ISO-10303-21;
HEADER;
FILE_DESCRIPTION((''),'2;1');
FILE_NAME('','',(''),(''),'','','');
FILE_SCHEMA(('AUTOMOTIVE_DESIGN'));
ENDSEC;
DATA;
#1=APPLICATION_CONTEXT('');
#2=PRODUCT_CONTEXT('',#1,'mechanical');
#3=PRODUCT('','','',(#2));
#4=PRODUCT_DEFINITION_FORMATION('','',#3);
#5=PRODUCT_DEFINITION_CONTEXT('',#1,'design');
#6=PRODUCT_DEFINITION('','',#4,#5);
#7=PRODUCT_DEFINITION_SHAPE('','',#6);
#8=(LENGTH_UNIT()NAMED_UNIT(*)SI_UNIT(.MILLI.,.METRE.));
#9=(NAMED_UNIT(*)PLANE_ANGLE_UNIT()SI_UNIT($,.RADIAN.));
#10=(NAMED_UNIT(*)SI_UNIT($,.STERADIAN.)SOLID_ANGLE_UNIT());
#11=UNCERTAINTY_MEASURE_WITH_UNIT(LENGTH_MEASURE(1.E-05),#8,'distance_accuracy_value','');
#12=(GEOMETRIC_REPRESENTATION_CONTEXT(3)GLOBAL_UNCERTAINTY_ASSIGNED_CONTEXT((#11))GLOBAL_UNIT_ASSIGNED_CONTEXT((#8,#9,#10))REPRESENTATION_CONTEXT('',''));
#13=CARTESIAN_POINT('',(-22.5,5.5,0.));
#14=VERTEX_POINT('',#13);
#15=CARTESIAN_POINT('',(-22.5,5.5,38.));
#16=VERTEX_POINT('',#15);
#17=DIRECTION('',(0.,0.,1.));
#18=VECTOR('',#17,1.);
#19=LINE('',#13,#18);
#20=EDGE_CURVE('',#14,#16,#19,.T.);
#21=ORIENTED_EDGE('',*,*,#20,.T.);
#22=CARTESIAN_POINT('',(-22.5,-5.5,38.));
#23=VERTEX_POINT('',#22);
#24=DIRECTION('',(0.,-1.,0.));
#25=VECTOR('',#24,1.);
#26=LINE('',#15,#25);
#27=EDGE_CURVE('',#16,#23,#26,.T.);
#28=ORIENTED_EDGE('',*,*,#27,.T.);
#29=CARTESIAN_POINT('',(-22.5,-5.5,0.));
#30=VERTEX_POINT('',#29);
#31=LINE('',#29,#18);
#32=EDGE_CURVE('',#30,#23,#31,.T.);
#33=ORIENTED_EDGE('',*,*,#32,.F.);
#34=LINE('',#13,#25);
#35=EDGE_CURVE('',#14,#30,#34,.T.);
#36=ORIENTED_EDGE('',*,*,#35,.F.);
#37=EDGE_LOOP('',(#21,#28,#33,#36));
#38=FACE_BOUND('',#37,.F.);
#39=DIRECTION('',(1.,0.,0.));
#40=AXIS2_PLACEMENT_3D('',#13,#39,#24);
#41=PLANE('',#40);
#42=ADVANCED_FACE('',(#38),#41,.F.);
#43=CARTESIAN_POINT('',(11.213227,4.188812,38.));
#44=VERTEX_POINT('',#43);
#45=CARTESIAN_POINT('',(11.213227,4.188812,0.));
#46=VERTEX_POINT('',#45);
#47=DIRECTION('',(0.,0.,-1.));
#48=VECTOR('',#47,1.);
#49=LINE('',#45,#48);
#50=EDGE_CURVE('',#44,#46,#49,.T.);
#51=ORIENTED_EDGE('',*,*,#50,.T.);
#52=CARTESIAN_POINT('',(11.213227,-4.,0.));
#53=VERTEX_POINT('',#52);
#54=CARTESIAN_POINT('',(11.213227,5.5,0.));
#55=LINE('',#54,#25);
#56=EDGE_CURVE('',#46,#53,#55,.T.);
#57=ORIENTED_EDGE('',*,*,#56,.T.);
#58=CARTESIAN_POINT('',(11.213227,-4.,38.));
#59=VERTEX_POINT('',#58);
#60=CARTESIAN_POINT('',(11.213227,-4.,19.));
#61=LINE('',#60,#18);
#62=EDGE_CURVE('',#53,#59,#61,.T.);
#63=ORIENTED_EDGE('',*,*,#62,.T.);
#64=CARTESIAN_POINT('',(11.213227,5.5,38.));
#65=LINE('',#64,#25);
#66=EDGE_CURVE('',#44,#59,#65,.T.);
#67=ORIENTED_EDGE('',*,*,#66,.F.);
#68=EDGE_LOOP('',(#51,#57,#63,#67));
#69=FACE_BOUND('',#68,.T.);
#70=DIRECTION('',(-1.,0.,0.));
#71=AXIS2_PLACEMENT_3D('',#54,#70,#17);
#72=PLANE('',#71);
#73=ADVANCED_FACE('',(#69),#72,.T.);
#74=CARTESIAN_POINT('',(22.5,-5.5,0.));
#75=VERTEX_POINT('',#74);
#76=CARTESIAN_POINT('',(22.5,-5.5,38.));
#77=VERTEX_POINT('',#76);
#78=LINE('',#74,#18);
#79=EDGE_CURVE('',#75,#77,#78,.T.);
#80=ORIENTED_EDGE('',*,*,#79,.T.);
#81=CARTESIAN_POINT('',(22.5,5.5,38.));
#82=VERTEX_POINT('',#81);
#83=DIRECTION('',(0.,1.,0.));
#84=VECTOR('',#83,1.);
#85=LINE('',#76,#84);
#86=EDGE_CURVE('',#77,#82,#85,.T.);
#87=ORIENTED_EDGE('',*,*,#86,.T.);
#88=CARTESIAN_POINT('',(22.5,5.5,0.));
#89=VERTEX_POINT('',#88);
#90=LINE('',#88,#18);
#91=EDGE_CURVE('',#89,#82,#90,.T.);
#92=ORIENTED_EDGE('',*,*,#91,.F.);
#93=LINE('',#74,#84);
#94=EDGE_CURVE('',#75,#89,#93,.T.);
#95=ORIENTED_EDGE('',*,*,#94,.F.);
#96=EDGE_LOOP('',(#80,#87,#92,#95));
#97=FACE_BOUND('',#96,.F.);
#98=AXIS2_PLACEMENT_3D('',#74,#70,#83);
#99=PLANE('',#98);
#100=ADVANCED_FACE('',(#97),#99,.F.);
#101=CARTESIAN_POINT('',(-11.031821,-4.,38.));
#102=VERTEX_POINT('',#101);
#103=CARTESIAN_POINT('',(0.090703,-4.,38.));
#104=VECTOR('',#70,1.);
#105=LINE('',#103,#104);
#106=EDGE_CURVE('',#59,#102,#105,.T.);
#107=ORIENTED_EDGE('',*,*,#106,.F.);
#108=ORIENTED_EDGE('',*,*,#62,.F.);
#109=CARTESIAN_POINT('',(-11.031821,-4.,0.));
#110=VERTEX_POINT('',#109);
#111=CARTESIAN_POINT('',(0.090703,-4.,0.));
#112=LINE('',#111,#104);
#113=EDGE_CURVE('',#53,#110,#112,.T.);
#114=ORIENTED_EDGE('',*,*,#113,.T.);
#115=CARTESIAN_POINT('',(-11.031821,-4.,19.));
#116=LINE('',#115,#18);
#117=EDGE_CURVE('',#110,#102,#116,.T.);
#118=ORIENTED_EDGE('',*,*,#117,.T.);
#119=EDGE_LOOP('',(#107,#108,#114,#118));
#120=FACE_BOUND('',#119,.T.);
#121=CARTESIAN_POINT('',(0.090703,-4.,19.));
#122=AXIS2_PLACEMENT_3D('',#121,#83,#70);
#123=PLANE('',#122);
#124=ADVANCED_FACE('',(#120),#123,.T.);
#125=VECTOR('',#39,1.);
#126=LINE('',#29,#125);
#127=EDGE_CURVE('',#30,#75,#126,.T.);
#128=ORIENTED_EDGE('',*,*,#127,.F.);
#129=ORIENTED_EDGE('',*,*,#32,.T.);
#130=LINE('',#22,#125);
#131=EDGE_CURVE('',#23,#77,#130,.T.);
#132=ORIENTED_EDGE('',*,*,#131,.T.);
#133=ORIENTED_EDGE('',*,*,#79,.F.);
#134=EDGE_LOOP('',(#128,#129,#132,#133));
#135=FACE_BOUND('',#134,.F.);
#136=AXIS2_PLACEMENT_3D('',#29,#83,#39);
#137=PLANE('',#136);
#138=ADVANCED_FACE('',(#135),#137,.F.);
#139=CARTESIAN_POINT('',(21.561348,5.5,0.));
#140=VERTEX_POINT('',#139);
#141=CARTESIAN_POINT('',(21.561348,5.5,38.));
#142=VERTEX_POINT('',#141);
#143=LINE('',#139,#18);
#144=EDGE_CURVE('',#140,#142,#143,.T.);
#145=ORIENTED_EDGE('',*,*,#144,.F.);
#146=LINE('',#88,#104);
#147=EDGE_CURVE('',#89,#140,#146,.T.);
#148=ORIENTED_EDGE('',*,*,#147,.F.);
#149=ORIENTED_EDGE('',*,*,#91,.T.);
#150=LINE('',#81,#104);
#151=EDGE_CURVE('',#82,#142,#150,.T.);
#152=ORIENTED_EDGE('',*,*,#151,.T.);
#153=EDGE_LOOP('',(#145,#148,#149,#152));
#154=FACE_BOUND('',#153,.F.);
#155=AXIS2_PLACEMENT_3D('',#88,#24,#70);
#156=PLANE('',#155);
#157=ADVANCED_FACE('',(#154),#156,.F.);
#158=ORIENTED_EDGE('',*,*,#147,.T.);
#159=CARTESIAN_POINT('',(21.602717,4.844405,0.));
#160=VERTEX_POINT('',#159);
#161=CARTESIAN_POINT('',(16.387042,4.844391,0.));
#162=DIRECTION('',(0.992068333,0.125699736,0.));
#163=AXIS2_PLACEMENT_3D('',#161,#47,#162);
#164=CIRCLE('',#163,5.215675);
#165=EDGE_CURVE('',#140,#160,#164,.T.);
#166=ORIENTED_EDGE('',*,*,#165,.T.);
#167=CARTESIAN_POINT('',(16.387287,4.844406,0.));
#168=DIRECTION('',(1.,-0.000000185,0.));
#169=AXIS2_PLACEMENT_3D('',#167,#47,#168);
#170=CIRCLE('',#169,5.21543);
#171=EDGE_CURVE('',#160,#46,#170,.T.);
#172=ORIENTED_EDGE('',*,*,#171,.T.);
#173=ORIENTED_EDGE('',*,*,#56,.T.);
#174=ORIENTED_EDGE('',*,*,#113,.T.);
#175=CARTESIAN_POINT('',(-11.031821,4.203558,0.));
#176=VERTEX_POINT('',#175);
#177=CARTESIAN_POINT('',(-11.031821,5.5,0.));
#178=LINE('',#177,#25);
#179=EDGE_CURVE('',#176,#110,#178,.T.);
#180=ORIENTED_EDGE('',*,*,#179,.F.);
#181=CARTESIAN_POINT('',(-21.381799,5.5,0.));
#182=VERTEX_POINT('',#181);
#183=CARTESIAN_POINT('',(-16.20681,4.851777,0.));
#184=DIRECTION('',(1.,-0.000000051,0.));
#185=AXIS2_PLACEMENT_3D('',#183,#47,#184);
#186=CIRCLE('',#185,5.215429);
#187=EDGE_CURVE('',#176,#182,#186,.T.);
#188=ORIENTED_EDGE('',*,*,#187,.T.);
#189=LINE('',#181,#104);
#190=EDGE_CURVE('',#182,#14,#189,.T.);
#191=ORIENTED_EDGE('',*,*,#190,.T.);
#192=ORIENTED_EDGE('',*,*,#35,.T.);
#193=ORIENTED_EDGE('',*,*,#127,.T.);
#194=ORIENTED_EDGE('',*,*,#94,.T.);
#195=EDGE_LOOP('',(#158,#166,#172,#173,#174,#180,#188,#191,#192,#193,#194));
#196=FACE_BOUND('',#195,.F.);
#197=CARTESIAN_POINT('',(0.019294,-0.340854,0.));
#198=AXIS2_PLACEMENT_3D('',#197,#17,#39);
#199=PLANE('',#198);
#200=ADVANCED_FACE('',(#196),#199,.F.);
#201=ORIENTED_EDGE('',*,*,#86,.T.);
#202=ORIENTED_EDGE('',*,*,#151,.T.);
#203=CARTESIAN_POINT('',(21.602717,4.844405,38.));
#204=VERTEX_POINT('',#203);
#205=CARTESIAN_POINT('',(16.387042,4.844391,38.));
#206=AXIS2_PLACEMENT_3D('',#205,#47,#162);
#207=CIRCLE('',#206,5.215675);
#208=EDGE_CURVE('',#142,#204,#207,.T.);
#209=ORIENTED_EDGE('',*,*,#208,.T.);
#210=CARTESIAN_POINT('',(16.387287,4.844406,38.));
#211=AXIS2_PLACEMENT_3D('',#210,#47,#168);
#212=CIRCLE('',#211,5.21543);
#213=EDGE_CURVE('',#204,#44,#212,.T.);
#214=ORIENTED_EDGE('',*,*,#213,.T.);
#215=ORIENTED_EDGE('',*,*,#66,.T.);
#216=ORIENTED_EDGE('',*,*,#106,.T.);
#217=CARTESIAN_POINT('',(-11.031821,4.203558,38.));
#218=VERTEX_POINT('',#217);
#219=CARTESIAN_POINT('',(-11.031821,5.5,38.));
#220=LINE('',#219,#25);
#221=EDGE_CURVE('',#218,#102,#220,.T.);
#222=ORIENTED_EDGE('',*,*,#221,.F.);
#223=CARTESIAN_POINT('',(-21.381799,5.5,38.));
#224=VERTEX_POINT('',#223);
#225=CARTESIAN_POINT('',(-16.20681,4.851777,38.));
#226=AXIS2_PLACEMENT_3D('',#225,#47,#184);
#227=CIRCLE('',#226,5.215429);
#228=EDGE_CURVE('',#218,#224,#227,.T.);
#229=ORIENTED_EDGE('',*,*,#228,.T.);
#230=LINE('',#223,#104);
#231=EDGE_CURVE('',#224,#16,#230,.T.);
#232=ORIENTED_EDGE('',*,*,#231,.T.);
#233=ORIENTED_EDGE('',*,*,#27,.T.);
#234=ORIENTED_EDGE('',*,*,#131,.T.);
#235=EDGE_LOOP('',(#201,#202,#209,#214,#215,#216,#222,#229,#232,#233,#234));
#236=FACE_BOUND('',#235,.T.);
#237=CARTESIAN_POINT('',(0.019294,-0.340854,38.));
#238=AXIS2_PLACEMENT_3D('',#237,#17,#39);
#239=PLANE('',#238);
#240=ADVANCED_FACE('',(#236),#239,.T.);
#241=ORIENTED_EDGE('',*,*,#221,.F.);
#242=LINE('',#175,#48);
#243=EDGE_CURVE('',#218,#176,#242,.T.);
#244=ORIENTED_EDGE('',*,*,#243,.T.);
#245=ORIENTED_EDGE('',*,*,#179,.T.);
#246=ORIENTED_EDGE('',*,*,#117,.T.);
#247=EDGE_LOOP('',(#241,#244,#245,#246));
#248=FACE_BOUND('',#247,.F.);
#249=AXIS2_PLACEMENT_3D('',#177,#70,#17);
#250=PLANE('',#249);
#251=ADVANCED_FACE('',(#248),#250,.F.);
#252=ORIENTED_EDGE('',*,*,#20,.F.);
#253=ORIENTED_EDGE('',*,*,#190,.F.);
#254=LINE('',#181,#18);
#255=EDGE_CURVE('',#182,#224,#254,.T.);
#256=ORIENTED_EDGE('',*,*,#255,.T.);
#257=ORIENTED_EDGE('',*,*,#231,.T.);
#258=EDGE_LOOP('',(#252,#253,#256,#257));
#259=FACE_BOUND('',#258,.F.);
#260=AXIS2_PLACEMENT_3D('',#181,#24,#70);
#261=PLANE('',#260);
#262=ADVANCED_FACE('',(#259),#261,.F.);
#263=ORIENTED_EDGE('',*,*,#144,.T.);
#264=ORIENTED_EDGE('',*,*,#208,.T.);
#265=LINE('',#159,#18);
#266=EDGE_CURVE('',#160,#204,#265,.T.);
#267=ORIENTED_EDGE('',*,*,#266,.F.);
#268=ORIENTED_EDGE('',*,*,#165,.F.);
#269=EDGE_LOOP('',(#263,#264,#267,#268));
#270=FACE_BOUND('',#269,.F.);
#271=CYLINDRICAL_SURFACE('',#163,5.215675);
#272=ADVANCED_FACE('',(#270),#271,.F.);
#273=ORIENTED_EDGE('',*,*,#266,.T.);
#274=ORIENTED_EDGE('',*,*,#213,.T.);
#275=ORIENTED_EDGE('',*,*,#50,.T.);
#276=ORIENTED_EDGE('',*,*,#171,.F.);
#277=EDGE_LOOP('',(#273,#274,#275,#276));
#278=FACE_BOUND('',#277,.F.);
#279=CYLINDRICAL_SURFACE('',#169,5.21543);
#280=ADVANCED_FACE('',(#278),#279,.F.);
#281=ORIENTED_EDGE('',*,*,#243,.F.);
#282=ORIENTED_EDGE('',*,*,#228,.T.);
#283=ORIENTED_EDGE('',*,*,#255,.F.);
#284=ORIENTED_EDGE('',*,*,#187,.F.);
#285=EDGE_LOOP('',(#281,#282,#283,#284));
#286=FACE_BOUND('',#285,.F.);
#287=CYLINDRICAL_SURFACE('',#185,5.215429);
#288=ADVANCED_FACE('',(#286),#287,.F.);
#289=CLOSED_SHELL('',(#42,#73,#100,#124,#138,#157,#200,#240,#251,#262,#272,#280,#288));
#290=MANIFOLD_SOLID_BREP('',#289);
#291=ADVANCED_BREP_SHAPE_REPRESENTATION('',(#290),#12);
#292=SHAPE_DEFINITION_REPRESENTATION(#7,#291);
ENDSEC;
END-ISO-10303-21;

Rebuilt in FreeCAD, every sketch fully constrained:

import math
import FreeCAD as App
import Part
import Sketcher

V = App.Vector

doc = App.newDocument("Part")
body = doc.addObject("PartDesign::Body", "Body")

sketch1 = body.newObject("Sketcher::SketchObject", "Sketch")
sketch1.AttachmentSupport = (doc.getObject("XY_Plane"), [""])
sketch1.MapMode = "FlatFace"
sketch1.addGeometry([
    Part.ArcOfCircle(Part.Circle(V(-16.206947, 4.851772, 0), V(0, 0, 1), 5.215566), math.radians(0.000055), math.radians(7.139594)),
    Part.ArcOfCircle(Part.Circle(V(-16.20681, 4.851777, 0), V(0, 0, 1), 5.215429), math.radians(172.860277), math.radians(359.999997)),
    Part.LineSegment(V(-21.381799, 5.5, 0), V(-22.5, 5.5, 0)),
    Part.LineSegment(V(-22.5, 5.5, 0), V(-22.5, -5.5, 0)),
    Part.LineSegment(V(-22.5, -5.5, 0), V(22.5, -5.5, 0)),
    Part.LineSegment(V(22.5, -5.5, 0), V(22.5, 5.5, 0)),
    Part.LineSegment(V(22.5, 5.5, 0), V(21.561348, 5.5, 0)),
    Part.ArcOfCircle(Part.Circle(V(16.387042, 4.844391, 0), V(0, 0, 1), 5.215675), math.radians(0.000154), math.radians(7.221166)),
    Part.ArcOfCircle(Part.Circle(V(16.387287, 4.844406, 0), V(0, 0, 1), 5.21543), math.radians(172.778657), math.radians(359.999989)),
    Part.LineSegment(V(11.213227, 5.5, 0), V(-11.031821, 5.5, 0)),
], False)
sketch1.addConstraint([
    Sketcher.Constraint("Tangent", 0, 1, 1, 2),
    Sketcher.Constraint("Coincident", 1, 1, 2, 1),
    Sketcher.Constraint("Coincident", 2, 2, 3, 1),
    Sketcher.Constraint("Coincident", 3, 2, 4, 1),
    Sketcher.Constraint("Coincident", 4, 2, 5, 1),
    Sketcher.Constraint("Coincident", 5, 2, 6, 1),
    Sketcher.Constraint("Coincident", 6, 2, 7, 2),
    Sketcher.Constraint("Coincident", 7, 1, 8, 2),
    Sketcher.Constraint("Coincident", 8, 1, 9, 1),
    Sketcher.Constraint("Coincident", 9, 2, 0, 2),
    Sketcher.Constraint("Horizontal", 2),
    Sketcher.Constraint("Vertical", 3),
    Sketcher.Constraint("Horizontal", 4),
    Sketcher.Constraint("Vertical", 5),
    Sketcher.Constraint("Horizontal", 6),
    Sketcher.Constraint("Horizontal", 9),
    Sketcher.Constraint("Equal", 1, 8),
    Sketcher.Constraint("Symmetric", 2, 2, 4, 2, -1, 1),
    Sketcher.Constraint("Horizontal", 1, 3, 0, 1),
    Sketcher.Constraint("Horizontal", 2, 2, 5, 2),
    Sketcher.Constraint("Horizontal", 8, 3, 7, 1),
    Sketcher.Constraint("Horizontal", 6, 2, 8, 1),
    Sketcher.Constraint("DistanceX", 4, 1, 4, 2, 45.0),
    Sketcher.Constraint("DistanceY", 3, 2, 3, 1, 11.0),
    Sketcher.Constraint("Radius", 1, 5.215429),
    Sketcher.Constraint("DistanceX", 2, 2, 2, 1, 1.118201),
    Sketcher.Constraint("Radius", 0, 5.215566),
    Sketcher.Constraint("Radius", 7, 5.215675),
    Sketcher.Constraint("DistanceX", 9, 2, 9, 1, 22.245048),
    Sketcher.Constraint("DistanceX", 6, 2, 6, 1, 0.938652),
    Sketcher.Constraint("DistanceY", -1, 1, 0, 3, 4.851772),
    Sketcher.Constraint("DistanceX", -1, 1, 7, 3, 16.387042),
])
pad1 = body.newObject("PartDesign::Pad", "Pad")
pad1.Profile = sketch1
pad1.Length = 38

sketch2 = body.newObject("Sketcher::SketchObject", "Sketch001")
sketch2.AttachmentSupport = (doc.getObject("XZ_Plane"), [""])
sketch2.MapMode = "FlatFace"
sketch2.AttachmentOffset = App.Placement(V(0, 0, -5.5), App.Rotation())
sketch2.addGeometry([
    Part.LineSegment(V(11.213227, 38, 0), V(11.213227, 0, 0)),
    Part.LineSegment(V(11.213227, 0, 0), V(-11.031821, 0, 0)),
    Part.LineSegment(V(-11.031821, 0, 0), V(-11.031821, 38, 0)),
    Part.LineSegment(V(-11.031821, 38, 0), V(11.213227, 38, 0)),
], False)
sketch2.addConstraint([
    Sketcher.Constraint("Coincident", 0, 2, 1, 1),
    Sketcher.Constraint("Coincident", 1, 2, 2, 1),
    Sketcher.Constraint("Coincident", 2, 2, 3, 1),
    Sketcher.Constraint("Coincident", 3, 2, 0, 1),
    Sketcher.Constraint("Vertical", 0),
    Sketcher.Constraint("Horizontal", 1),
    Sketcher.Constraint("Vertical", 2),
    Sketcher.Constraint("Horizontal", 3),
    Sketcher.Constraint("PointOnObject", 0, 2, -1),
    Sketcher.Constraint("DistanceY", 0, 2, 0, 1, 38.0),
    Sketcher.Constraint("DistanceX", 1, 2, 1, 1, 22.245048),
    Sketcher.Constraint("DistanceX", 1, 2, -1, 1, 11.031821),
])
pocket1 = body.newObject("PartDesign::Pocket", "Pocket")
pocket1.Profile = sketch2
pocket1.Length = 9.5
pocket1.Reversed = True

doc.recompute()
